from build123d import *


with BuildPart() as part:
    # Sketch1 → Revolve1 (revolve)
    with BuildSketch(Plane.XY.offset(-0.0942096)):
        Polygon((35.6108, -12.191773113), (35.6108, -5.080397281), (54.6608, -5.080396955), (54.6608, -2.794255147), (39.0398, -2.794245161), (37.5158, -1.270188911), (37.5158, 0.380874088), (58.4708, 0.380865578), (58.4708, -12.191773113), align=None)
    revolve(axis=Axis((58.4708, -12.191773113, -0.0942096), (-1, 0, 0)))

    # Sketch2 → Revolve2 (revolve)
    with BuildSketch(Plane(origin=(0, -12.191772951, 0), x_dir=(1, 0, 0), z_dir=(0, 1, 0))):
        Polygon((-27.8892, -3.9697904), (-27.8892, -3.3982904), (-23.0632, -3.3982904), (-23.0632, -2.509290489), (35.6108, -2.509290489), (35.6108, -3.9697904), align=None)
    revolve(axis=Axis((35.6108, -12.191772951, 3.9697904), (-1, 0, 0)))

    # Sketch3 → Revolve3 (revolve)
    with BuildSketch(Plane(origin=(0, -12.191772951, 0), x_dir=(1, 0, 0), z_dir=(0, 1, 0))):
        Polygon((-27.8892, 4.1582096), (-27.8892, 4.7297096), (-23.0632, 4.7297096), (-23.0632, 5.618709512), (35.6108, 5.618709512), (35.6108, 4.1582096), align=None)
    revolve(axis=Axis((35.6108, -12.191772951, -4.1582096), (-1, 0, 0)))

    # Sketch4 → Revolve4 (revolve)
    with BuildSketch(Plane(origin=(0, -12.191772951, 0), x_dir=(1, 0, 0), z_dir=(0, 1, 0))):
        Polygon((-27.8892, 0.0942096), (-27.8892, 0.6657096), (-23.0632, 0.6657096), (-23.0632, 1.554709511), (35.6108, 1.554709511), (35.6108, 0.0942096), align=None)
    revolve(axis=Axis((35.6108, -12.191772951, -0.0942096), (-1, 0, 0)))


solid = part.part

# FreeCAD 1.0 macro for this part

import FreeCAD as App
import Part
import Sketcher
Q = App.Units.Quantity


def add_polygon(sketch, points):
    """Adds a closed chain of lines whose ends are joined by coincident constraints."""
    first, n = sketch.GeometryCount, len(points)
    for a, b in zip(points, points[1:] + points[:1]):
        sketch.addGeometry(Part.LineSegment(App.Vector(*a, 0), App.Vector(*b, 0)), False)
    for i in range(n):
        sketch.addConstraint(Sketcher.Constraint("Coincident", first + i, 2, first + (i + 1) % n, 1))

doc = App.newDocument("Part")
body = doc.addObject("PartDesign::Body", "Body")

# Sketch on XY plane
sketch1 = body.newObject("Sketcher::SketchObject", "Sketch")
sketch1.AttachmentSupport = (doc.getObject("XY_Plane"), [""])
sketch1.MapMode = "FlatFace"
sketch1.AttachmentOffset = App.Placement(App.Vector(0, 0, -0.09421), App.Rotation())
add_polygon(sketch1, [(35.6, -5.1), (35.6, -12.2), (58.5, -12.2), (58.5, 0.4), (37.5, 0.4), (37.5, -1.3), (39, -2.8), (54.7, -2.8), (54.7, -5.1)])  # lines 0-8
sketch1.addGeometry(Part.LineSegment(App.Vector(58.5, -12.2, 0), App.Vector(35.6, -12.2, 0)), True)  # axis
sketch1.addConstraint([
    Sketcher.Constraint("Vertical", 0),
    Sketcher.Constraint("Horizontal", 1),
    Sketcher.Constraint("Vertical", 2),
    Sketcher.Constraint("Vertical", 4),
    Sketcher.Constraint("Vertical", 7),
    Sketcher.Constraint("Horizontal", 8),
    Sketcher.Constraint("Horizontal", 9),
    Sketcher.Constraint("Coincident", 9, 1, 1, 2),
    Sketcher.Constraint("Parallel", 3, 6),
    Sketcher.Constraint("Vertical", 8, 2, 9, 2),
    Sketcher.Constraint("DistanceX", 1, 1, 1, 2, Q("0.9 in")),
    Sketcher.Constraint("DistanceX", 8, 2, 8, 1, Q("0.75 in")),
    Sketcher.Constraint("DistanceX", 4, 2, 5, 2, Q("0.06 in")),
    Sketcher.Constraint("Distance", 3, Q("0.825 in")),
    Sketcher.Constraint("DistanceX", -1, 1, 0, 2, Q("1.402 in")),
    Sketcher.Constraint("Distance", 5, 2.155301),
    Sketcher.Constraint("DistanceY", 2, 1, 2, 2, 12.572639),
    Sketcher.Constraint("DistanceY", 7, 2, 7, 1, 2.286142),
    Sketcher.Constraint("DistanceY", 0, 2, 0, 1, 7.111376),
    Sketcher.Constraint("DistanceY", 4, 2, 4, 1, 1.651063),
    Sketcher.Constraint("DistanceY", 4, 2, -1, 1, 1.270189),
])
revolution = body.newObject("PartDesign::Revolution", "Revolution")
revolution.Profile = sketch1
revolution.ReferenceAxis = (sketch1, ["Axis0"])
revolution.Angle = 360

# Sketch on XZ plane
sketch2 = body.newObject("Sketcher::SketchObject", "Sketch001")
sketch2.AttachmentSupport = (doc.getObject("XZ_Plane"), [""])
sketch2.MapMode = "FlatFace"
sketch2.AttachmentOffset = App.Placement(App.Vector(0, 0, 12.191773), App.Rotation())
add_polygon(sketch2, [(-27.9, 3.4), (-27.9, 4), (35.6, 4), (35.6, 2.5), (-23.1, 2.5), (-23.1, 3.4)])  # lines 0-5
sketch2.addGeometry(Part.LineSegment(App.Vector(35.6, 4, 0), App.Vector(-27.9, 4, 0)), True)  # axis
sketch2.addConstraint([
    Sketcher.Constraint("Vertical", 0),
    Sketcher.Constraint("Horizontal", 1),
    Sketcher.Constraint("Vertical", 2),
    Sketcher.Constraint("Horizontal", 3),
    Sketcher.Constraint("Vertical", 4),
    Sketcher.Constraint("Horizontal", 5),
    Sketcher.Constraint("Horizontal", 6),
    Sketcher.Constraint("Coincident", 6, 1, 1, 2),
    Sketcher.Constraint("Vertical", 5, 2, 6, 2),
    Sketcher.Constraint("DistanceX", 1, 1, 1, 2, Q("2.5 in")),
    Sketcher.Constraint("DistanceX", 3, 2, 3, 1, Q("2.31 in")),
    Sketcher.Constraint("DistanceY", 4, 1, 4, 2, Q("0.035 in")),
    Sketcher.Constraint("DistanceY", 0, 1, 0, 2, Q("0.0225 in")),
    Sketcher.Constraint("DistanceX", 0, 2, -1, 1, Q("1.098 in")),
    Sketcher.Constraint("DistanceY", -1, 1, 0, 2, 3.96979),
])
revolution2 = body.newObject("PartDesign::Revolution", "Revolution001")
revolution2.Profile = sketch2
revolution2.ReferenceAxis = (sketch2, ["Axis0"])
revolution2.Angle = 360

# Sketch on XZ plane
sketch3 = body.newObject("Sketcher::SketchObject", "Sketch002")
sketch3.AttachmentSupport = (doc.getObject("XZ_Plane"), [""])
sketch3.MapMode = "FlatFace"
sketch3.AttachmentOffset = App.Placement(App.Vector(0, 0, 12.191773), App.Rotation())
add_polygon(sketch3, [(-27.9, -4.7), (-27.9, -4.2), (35.6, -4.2), (35.6, -5.6), (-23.1, -5.6), (-23.1, -4.7)])  # lines 0-5
sketch3.addGeometry(Part.LineSegment(App.Vector(35.6, -4.2, 0), App.Vector(-27.9, -4.2, 0)), True)  # axis
sketch3.addConstraint([
    Sketcher.Constraint("Vertical", 0),
    Sketcher.Constraint("Horizontal", 1),
    Sketcher.Constraint("Vertical", 2),
    Sketcher.Constraint("Horizontal", 3),
    Sketcher.Constraint("Vertical", 4),
    Sketcher.Constraint("Horizontal", 5),
    Sketcher.Constraint("Horizontal", 6),
    Sketcher.Constraint("Coincident", 6, 1, 1, 2),
    Sketcher.Constraint("Vertical", 5, 2, 6, 2),
    Sketcher.Constraint("DistanceX", 1, 1, 1, 2, Q("2.5 in")),
    Sketcher.Constraint("DistanceX", 3, 2, 3, 1, Q("2.31 in")),
    Sketcher.Constraint("DistanceY", 4, 1, 4, 2, Q("0.035 in")),
    Sketcher.Constraint("DistanceY", 0, 1, 0, 2, Q("0.0225 in")),
    Sketcher.Constraint("DistanceX", 0, 2, -1, 1, Q("1.098 in")),
    Sketcher.Constraint("DistanceY", 0, 2, -1, 1, 4.15821),
])
revolution3 = body.newObject("PartDesign::Revolution", "Revolution002")
revolution3.Profile = sketch3
revolution3.ReferenceAxis = (sketch3, ["Axis0"])
revolution3.Angle = 360

# Sketch on XZ plane
sketch4 = body.newObject("Sketcher::SketchObject", "Sketch003")
sketch4.AttachmentSupport = (doc.getObject("XZ_Plane"), [""])
sketch4.MapMode = "FlatFace"
sketch4.AttachmentOffset = App.Placement(App.Vector(0, 0, 12.191773), App.Rotation())
add_polygon(sketch4, [(-27.9, -0.7), (-27.9, -0.1), (35.6, -0.1), (35.6, -1.6), (-23.1, -1.6), (-23.1, -0.7)])  # lines 0-5
sketch4.addGeometry(Part.LineSegment(App.Vector(35.6, -0.1, 0), App.Vector(-27.9, -0.1, 0)), True)  # axis
sketch4.addConstraint([
    Sketcher.Constraint("Vertical", 0),
    Sketcher.Constraint("Horizontal", 1),
    Sketcher.Constraint("Vertical", 2),
    Sketcher.Constraint("Horizontal", 3),
    Sketcher.Constraint("Vertical", 4),
    Sketcher.Constraint("Horizontal", 5),
    Sketcher.Constraint("Horizontal", 6),
    Sketcher.Constraint("Coincident", 6, 1, 1, 2),
    Sketcher.Constraint("Vertical", 5, 2, 6, 2),
    Sketcher.Constraint("DistanceX", 1, 1, 1, 2, Q("2.5 in")),
    Sketcher.Constraint("DistanceX", 3, 2, 3, 1, Q("2.31 in")),
    Sketcher.Constraint("DistanceY", 4, 1, 4, 2, Q("0.035 in")),
    Sketcher.Constraint("DistanceY", 0, 1, 0, 2, Q("0.0225 in")),
    Sketcher.Constraint("DistanceX", 0, 2, -1, 1, Q("1.098 in")),
    Sketcher.Constraint("DistanceY", 0, 2, -1, 1, 0.09421),
])
revolution4 = body.newObject("PartDesign::Revolution", "Revolution003")
revolution4.Profile = sketch4
revolution4.ReferenceAxis = (sketch4, ["Axis0"])
revolution4.Angle = 360

doc.recompute()
